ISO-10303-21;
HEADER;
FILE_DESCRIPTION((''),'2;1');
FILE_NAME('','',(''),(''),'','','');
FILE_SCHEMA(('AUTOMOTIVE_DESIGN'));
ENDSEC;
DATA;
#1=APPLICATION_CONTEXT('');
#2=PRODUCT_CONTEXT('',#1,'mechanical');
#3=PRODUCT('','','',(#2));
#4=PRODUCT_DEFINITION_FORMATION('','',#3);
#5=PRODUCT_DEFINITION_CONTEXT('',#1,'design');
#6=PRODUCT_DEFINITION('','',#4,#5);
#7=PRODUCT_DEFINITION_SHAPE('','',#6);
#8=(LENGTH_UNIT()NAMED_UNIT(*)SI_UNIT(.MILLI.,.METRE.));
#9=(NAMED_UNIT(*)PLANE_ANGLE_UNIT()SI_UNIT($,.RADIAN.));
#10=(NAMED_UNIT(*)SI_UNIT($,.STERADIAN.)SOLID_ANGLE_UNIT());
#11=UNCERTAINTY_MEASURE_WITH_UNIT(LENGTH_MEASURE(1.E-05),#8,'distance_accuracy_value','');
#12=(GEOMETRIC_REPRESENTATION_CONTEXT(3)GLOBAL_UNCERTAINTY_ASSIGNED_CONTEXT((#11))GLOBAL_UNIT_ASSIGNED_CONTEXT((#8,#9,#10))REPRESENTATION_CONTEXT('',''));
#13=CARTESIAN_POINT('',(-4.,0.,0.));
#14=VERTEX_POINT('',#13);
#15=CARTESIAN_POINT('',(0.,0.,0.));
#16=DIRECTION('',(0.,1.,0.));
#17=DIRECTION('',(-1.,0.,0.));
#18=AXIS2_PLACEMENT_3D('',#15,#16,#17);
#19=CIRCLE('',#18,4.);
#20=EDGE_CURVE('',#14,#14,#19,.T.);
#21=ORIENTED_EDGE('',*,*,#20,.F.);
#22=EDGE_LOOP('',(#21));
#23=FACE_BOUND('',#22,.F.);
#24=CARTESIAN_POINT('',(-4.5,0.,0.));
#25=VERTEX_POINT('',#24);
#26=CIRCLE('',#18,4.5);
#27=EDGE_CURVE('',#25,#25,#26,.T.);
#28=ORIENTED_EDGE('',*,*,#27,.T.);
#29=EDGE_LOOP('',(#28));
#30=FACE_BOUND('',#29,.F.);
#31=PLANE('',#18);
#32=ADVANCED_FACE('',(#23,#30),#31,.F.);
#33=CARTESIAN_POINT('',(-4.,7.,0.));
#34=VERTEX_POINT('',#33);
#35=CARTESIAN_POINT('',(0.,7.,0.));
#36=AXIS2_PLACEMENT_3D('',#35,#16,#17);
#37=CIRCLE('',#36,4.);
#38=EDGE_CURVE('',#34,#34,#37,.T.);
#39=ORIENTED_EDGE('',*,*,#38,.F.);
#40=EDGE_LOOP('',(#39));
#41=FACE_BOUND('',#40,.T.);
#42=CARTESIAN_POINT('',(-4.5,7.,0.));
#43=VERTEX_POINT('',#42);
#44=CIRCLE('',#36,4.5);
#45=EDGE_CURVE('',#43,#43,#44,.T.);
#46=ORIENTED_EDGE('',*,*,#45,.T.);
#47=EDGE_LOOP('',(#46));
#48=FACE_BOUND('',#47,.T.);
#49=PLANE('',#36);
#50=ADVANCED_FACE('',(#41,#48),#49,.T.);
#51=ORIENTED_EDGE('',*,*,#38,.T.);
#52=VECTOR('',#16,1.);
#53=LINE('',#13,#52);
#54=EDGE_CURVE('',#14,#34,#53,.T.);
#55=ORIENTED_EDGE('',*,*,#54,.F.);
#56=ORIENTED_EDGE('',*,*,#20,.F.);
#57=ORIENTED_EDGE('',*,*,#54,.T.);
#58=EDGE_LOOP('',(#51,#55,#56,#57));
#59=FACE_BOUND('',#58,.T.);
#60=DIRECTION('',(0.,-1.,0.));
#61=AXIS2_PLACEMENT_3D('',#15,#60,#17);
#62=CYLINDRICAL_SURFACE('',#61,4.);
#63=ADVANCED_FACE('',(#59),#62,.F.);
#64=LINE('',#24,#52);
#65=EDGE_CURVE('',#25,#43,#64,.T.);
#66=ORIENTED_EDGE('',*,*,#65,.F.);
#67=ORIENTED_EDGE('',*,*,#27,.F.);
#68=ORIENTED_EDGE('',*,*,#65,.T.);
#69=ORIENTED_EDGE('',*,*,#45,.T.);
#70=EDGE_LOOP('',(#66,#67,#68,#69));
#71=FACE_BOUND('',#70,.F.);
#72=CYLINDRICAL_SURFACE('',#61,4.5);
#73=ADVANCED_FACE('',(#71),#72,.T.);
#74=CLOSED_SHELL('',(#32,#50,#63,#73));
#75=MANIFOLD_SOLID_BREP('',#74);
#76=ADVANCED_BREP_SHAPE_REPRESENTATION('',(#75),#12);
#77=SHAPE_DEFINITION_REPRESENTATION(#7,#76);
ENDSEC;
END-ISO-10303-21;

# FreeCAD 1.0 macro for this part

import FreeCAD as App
import Part
import Sketcher
Q = App.Units.Quantity

doc = App.newDocument("Part")
body = doc.addObject("PartDesign::Body", "Body")

sketch1 = body.newObject("Sketcher::SketchObject", "Sketch")
sketch1.AttachmentSupport = (doc.getObject("XZ_Plane"), [""])
sketch1.MapMode = "FlatFace"
sketch1.addGeometry([
    Part.Circle(App.Vector(0, 0, 0), App.Vector(0, 0, 1), 4.5),
    Part.Circle(App.Vector(0, 0, 0), App.Vector(0, 0, 1), 4),
], False)
sketch1.addConstraint([
    Sketcher.Constraint("Coincident", 0, 3, -1, 1),
    Sketcher.Constraint("Coincident", 1, 3, -1, 1),
    Sketcher.Constraint("Diameter", 0, Q("9 mm")),
    Sketcher.Constraint("Diameter", 1, Q("8 mm")),
])
pad1 = body.newObject("PartDesign::Pad", "Pad")
pad1.Profile = sketch1
pad1.Length = 7
pad1.Reversed = True

doc.recompute()
